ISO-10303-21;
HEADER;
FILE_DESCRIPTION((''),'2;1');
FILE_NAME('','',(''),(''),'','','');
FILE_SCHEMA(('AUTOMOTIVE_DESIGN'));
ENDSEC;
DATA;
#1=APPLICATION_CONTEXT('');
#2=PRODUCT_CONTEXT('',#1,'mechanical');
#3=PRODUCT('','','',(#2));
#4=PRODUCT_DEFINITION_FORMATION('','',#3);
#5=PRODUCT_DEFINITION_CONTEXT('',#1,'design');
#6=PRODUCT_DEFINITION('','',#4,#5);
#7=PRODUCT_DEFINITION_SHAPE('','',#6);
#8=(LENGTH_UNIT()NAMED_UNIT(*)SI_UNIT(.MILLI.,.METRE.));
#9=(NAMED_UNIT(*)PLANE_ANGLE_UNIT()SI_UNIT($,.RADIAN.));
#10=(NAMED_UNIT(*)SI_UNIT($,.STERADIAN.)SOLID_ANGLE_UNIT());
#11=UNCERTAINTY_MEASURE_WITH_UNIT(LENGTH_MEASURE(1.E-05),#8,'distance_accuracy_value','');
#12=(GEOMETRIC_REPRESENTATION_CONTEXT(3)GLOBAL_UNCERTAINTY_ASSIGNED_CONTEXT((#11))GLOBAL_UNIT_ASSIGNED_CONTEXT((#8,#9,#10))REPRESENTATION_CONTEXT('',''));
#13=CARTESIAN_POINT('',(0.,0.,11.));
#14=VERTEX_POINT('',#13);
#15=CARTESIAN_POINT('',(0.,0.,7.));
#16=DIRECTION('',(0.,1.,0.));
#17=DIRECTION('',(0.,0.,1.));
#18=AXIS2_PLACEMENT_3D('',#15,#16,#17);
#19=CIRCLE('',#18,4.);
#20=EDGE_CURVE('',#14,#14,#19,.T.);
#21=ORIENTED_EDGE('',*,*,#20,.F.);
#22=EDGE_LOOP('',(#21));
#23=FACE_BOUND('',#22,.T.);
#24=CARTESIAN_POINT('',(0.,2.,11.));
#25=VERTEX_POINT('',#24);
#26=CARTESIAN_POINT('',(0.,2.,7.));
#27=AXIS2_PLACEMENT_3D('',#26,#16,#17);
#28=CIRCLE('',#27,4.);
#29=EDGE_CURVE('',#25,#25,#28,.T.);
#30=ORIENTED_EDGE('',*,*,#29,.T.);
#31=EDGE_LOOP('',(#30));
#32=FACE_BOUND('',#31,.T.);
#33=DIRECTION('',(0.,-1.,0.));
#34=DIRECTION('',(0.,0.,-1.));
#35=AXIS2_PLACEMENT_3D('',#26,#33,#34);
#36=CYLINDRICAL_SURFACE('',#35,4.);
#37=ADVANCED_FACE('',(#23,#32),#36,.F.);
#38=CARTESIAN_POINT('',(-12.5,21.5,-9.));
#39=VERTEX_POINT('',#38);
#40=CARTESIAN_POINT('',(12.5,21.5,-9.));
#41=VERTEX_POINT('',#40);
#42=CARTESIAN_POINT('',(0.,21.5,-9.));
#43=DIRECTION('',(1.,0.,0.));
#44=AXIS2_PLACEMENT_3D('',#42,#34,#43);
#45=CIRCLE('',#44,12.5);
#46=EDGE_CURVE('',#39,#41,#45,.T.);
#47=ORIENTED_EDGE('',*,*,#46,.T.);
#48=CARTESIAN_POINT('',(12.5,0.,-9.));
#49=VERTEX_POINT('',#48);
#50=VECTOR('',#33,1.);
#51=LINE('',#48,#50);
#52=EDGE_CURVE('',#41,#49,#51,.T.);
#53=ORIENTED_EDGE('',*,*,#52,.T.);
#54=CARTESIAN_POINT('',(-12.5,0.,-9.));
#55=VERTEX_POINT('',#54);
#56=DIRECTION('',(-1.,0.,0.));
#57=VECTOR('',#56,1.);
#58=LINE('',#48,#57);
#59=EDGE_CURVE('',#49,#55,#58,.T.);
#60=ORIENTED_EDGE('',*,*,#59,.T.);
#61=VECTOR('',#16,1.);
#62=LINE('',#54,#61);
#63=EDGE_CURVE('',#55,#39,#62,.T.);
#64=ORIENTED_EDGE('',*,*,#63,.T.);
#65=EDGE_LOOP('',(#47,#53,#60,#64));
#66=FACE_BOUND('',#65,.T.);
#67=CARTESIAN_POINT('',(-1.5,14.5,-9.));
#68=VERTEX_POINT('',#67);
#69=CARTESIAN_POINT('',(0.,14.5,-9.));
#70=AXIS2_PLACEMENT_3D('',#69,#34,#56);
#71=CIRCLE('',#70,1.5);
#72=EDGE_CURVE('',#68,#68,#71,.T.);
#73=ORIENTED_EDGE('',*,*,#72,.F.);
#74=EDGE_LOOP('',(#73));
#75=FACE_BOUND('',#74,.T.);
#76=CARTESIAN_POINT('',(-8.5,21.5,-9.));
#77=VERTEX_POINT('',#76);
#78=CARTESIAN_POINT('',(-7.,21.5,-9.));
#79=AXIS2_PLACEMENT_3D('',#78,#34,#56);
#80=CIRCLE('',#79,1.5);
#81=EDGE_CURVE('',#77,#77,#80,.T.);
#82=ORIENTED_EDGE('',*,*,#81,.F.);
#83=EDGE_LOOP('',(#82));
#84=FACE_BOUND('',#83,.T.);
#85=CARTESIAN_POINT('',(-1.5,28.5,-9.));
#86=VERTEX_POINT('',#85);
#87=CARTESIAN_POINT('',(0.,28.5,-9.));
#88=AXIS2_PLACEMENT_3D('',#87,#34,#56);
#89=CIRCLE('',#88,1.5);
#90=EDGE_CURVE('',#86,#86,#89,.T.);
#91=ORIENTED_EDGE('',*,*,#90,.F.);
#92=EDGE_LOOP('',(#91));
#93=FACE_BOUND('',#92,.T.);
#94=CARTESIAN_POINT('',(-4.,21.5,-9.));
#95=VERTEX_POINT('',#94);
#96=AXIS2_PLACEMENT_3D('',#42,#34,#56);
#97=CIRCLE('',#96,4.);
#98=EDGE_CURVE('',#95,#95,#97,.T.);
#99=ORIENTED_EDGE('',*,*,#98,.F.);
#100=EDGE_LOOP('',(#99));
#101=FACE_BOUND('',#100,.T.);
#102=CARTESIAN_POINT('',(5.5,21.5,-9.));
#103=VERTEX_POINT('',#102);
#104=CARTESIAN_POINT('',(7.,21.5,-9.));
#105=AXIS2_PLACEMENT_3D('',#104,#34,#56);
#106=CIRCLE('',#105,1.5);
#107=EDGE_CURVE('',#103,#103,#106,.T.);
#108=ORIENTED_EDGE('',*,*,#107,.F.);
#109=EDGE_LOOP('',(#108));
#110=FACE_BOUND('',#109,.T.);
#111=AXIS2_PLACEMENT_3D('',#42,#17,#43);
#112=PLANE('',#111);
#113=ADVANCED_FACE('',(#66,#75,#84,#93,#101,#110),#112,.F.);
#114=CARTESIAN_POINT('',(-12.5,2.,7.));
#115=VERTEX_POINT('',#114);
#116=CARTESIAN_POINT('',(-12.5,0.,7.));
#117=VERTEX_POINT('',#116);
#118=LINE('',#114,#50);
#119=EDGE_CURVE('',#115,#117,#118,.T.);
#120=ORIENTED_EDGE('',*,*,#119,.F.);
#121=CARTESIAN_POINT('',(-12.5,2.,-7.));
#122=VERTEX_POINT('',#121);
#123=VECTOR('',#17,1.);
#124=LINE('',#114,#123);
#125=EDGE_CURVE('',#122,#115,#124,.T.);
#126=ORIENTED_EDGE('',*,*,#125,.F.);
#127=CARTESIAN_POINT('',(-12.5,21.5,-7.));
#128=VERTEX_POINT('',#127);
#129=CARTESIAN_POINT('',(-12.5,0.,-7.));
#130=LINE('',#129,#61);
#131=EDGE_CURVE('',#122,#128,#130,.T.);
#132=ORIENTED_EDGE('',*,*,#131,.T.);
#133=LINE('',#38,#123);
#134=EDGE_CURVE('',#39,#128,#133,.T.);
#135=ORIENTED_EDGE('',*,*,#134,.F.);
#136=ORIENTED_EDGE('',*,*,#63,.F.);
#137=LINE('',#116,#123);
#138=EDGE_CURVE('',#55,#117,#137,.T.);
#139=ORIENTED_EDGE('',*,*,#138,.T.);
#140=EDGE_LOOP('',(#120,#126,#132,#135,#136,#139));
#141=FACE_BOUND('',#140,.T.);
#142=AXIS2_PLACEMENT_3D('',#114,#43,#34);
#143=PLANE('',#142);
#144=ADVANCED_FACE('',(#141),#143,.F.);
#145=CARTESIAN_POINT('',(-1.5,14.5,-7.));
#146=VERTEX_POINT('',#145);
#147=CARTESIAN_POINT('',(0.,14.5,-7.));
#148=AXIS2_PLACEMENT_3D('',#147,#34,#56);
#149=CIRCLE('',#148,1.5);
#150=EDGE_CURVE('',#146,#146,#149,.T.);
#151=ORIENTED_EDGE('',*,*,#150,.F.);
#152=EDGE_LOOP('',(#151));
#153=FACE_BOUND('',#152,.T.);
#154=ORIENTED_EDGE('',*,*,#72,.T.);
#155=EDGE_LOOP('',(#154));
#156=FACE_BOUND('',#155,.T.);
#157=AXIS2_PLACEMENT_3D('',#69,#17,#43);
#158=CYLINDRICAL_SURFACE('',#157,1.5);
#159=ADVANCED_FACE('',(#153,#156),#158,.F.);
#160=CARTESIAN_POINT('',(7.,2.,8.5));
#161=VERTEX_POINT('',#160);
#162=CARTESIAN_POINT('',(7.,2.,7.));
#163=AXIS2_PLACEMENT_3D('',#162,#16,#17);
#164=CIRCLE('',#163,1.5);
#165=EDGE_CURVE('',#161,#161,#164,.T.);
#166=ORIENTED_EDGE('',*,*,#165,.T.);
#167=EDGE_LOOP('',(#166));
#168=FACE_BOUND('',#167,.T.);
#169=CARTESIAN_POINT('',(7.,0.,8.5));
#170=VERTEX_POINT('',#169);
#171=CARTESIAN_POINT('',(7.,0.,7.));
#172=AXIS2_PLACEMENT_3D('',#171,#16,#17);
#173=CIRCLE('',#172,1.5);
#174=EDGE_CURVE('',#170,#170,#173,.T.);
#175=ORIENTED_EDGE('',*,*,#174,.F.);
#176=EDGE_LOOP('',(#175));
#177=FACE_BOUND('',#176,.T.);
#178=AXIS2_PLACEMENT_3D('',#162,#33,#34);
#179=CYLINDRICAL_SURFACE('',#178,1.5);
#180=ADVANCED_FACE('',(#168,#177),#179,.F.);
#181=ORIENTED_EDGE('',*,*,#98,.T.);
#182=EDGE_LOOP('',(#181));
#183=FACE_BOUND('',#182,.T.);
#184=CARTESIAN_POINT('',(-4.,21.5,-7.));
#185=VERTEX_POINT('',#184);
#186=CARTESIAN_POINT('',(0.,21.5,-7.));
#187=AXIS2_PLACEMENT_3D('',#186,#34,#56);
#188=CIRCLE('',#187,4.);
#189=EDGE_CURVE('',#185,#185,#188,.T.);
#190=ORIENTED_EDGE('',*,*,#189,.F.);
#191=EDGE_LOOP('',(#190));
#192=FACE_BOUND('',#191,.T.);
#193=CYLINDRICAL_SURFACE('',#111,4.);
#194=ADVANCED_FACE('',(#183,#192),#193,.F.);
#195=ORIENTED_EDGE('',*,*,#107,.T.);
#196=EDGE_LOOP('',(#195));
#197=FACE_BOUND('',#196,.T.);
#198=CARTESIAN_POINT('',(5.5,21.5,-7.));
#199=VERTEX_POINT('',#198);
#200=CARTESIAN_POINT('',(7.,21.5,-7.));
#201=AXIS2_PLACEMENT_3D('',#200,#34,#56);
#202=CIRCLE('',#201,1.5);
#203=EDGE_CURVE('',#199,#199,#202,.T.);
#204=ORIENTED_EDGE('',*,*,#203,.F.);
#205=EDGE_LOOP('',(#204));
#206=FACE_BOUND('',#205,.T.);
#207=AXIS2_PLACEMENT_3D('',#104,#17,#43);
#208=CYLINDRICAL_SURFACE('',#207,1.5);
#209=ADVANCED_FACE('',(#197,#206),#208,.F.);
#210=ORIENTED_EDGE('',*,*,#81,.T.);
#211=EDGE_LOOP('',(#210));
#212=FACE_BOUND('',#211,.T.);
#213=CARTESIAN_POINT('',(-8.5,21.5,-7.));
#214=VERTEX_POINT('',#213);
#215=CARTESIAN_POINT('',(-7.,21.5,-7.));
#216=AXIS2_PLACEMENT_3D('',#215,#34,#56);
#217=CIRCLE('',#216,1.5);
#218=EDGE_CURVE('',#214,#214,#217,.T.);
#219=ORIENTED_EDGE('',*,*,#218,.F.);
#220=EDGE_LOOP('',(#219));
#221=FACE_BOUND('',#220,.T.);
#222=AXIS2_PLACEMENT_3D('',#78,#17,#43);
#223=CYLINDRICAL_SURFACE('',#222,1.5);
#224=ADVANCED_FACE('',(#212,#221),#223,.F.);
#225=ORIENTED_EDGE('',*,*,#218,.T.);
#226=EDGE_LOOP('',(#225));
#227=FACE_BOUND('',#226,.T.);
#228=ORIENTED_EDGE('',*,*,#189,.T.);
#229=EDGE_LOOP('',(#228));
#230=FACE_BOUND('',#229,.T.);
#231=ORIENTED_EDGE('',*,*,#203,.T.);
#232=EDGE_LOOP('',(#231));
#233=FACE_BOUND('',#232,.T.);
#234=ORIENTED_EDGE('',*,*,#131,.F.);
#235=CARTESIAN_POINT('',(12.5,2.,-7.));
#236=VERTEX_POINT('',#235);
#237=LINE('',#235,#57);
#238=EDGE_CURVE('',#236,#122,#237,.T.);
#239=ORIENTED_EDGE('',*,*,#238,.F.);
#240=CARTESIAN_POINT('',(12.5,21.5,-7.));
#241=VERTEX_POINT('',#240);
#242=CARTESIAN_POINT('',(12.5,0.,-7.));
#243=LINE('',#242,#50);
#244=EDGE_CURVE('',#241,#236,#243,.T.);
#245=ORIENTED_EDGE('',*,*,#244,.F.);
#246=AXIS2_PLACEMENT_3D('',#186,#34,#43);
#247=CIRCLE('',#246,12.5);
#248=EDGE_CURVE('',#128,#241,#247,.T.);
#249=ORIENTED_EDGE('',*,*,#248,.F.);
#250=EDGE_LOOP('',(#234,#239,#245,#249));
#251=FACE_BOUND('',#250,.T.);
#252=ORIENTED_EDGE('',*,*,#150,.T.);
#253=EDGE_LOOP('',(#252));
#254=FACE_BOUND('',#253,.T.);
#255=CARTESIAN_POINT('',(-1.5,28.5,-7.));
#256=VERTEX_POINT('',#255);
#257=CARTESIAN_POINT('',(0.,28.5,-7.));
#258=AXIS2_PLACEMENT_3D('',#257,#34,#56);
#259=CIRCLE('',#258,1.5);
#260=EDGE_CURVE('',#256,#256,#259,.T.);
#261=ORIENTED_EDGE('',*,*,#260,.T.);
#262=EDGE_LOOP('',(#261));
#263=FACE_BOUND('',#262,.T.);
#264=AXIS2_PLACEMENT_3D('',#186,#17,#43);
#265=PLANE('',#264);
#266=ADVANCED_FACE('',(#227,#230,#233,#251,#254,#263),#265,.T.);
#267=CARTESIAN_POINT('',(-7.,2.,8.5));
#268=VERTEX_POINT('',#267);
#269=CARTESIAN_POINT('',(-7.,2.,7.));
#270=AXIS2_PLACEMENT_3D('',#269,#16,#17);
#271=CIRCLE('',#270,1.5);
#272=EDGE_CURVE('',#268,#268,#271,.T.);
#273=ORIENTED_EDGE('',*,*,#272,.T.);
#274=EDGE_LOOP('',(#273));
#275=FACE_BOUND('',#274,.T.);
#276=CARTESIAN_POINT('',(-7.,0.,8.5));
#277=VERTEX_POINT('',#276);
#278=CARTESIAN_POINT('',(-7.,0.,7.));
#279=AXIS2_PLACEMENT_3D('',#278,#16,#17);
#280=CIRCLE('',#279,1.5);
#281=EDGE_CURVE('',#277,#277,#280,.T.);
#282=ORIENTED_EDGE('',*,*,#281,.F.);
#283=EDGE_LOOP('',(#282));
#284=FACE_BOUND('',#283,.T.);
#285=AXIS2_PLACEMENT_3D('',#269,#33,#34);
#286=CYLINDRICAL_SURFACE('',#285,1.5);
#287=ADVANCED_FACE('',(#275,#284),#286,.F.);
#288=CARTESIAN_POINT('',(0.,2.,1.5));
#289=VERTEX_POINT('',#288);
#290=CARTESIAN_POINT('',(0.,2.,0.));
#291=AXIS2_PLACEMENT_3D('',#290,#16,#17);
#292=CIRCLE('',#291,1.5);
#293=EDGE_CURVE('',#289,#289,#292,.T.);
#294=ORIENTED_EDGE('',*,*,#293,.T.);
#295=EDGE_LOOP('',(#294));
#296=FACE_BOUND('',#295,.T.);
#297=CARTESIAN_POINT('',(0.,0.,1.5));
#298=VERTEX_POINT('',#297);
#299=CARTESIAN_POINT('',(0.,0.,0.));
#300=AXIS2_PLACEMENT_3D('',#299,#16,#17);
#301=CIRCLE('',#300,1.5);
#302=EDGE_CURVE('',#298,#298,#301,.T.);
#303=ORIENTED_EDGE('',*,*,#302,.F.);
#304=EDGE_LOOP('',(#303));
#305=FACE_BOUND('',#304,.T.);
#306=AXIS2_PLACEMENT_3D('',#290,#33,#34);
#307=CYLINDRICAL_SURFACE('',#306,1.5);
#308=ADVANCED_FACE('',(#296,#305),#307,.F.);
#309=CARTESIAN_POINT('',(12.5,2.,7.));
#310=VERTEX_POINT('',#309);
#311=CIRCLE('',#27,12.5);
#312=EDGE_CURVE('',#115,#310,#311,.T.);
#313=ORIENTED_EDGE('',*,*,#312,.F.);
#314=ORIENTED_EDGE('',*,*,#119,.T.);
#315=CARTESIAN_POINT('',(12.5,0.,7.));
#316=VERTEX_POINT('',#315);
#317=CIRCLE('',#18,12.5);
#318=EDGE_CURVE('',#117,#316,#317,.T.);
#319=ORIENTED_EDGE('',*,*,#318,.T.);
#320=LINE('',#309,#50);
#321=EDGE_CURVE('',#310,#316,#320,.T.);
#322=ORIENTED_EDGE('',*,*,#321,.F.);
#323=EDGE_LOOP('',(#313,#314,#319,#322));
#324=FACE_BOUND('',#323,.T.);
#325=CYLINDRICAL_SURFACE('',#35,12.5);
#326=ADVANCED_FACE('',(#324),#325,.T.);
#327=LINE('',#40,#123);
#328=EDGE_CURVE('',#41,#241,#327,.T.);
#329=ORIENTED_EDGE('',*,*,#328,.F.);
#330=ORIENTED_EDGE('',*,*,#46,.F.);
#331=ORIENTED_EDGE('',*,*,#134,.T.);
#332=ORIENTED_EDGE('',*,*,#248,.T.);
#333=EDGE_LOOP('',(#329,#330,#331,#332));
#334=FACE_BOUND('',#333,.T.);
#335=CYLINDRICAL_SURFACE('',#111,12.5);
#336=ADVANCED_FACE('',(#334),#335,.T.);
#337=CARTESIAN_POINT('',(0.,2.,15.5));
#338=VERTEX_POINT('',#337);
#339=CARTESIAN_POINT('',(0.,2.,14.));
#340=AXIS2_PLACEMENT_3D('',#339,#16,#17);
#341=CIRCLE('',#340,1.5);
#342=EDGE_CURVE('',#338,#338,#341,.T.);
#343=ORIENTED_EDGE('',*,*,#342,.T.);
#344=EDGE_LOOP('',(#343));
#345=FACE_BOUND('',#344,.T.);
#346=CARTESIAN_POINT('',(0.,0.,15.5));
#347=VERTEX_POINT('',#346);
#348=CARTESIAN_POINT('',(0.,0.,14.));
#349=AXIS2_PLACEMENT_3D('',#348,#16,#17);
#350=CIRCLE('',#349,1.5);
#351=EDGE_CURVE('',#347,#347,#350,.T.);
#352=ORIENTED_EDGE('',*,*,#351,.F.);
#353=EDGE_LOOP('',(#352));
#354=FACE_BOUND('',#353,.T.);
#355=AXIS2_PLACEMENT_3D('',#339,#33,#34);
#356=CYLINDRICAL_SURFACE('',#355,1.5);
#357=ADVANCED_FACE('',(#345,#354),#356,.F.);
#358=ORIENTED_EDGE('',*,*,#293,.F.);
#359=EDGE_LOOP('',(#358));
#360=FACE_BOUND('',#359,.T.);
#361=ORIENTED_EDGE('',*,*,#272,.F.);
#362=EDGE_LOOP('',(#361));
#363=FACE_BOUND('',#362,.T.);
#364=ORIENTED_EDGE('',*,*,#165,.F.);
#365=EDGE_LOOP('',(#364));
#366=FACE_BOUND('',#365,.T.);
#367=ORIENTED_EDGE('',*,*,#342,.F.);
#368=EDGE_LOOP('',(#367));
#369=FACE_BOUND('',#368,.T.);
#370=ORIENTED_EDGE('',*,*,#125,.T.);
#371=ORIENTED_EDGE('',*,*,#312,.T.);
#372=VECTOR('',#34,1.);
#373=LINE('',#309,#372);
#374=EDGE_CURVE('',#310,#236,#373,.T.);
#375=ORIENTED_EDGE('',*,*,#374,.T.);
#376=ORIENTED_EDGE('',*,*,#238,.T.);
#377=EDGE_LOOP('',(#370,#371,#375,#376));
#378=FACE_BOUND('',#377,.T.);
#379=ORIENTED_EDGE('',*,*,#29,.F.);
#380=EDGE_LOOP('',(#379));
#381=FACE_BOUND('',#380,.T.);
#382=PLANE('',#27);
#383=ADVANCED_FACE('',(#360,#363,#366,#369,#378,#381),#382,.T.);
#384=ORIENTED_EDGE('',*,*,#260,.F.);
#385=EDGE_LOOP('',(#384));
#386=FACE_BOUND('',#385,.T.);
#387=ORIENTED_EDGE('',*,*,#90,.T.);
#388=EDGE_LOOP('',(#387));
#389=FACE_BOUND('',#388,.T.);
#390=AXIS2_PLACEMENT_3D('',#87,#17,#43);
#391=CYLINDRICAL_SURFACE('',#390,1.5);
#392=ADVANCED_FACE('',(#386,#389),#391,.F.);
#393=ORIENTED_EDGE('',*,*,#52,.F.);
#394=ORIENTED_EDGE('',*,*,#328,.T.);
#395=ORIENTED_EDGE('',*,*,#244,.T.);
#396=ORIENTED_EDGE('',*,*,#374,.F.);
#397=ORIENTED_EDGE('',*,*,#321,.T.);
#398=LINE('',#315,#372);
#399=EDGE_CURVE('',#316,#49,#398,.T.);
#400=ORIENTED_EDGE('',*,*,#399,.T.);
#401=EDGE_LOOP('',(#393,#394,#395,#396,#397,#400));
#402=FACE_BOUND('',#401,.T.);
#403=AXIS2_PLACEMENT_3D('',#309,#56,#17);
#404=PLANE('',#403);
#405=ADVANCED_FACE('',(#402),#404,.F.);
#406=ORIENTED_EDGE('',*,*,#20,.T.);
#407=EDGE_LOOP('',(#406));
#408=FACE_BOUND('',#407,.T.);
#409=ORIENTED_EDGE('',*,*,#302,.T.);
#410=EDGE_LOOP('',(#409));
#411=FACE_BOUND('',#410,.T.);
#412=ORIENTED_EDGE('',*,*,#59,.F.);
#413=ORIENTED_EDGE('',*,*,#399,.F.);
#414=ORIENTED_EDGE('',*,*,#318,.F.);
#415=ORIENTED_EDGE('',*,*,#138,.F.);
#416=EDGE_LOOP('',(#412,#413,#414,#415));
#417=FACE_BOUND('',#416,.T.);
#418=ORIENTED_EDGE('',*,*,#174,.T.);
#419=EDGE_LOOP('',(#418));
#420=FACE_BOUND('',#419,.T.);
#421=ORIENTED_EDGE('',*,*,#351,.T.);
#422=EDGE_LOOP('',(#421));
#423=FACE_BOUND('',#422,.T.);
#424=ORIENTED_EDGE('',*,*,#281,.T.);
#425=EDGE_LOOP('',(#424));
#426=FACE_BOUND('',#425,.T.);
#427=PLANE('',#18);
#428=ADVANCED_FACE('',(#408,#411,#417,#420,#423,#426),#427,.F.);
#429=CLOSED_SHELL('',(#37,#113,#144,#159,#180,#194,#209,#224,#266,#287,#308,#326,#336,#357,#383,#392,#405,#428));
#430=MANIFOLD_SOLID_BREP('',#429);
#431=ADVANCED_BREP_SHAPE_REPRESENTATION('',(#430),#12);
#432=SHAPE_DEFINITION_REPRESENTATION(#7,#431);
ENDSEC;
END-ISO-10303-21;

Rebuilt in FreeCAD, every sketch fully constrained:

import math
import FreeCAD as App
import Part
import Sketcher
from FreeCAD import Vector

doc = App.newDocument("Part")
params = doc.addObject("Spreadsheet::Sheet", "Params")
for row, (alias, value) in enumerate([
    ("sketch1_diameter", "3 mm"),
    ("sketch1_diameter2", "8 mm"),
    ("sketch1_radius", "12.5 mm"),
    ("sketch1_height", "14 mm"),
    ("pad1_length", "2 mm"),
    ("sketch2_diameter", "3 mm"),
    ("sketch2_diameter2", "8 mm"),
    ("sketch2_radius", "12.5 mm"),
    ("sketch2_height", "21.5 mm"),
    ("pad2_length", "2 mm"),
], start=1):
    params.set(f"A{row}", alias)
    params.set(f"B{row}", "=" + value)
    params.setAlias(f"B{row}", alias)

body = doc.addObject("PartDesign::Body", "Body")

sketch1 = body.newObject("Sketcher::SketchObject", "Sketch")
sketch1.AttachmentSupport = (doc.getObject("XZ_Plane"), [""])
sketch1.MapMode = "FlatFace"
sketch1.addGeometry([
    Part.LineSegment(Vector(12.5, 7, 0), Vector(12.5, -7, 0)),
    Part.LineSegment(Vector(12.5, -7, 0), Vector(-12.5, -7, 0)),
    Part.LineSegment(Vector(-12.5, -7, 0), Vector(-12.5, 7, 0)),
    Part.ArcOfCircle(Part.Circle(Vector(0, 7, 0), Vector(0, 0, 1), 12.5), math.radians(0), math.radians(180)),
    Part.Circle(Vector(0, 14, 0), Vector(0, 0, 1), 1.5),
    Part.Circle(Vector(-7, 7, 0), Vector(0, 0, 1), 1.5),
    Part.Circle(Vector(0, 7, 0), Vector(0, 0, 1), 4),
    Part.Circle(Vector(7, 7, 0), Vector(0, 0, 1), 1.5),
    Part.Circle(Vector(0, 0, 0), Vector(0, 0, 1), 1.5),
], False)
sketch1.addConstraint([
    Sketcher.Constraint("Coincident", 0, 2, 1, 1),
    Sketcher.Constraint("Coincident", 1, 2, 2, 1),
    Sketcher.Constraint("Tangent", 2, 2, 3, 2),
    Sketcher.Constraint("Tangent", 3, 1, 0, 1),
    Sketcher.Constraint("Vertical", 0),
    Sketcher.Constraint("Horizontal", 1),
    Sketcher.Constraint("Vertical", 2),
    Sketcher.Constraint("Coincident", 8, 3, -1, 1),
    Sketcher.Constraint("Coincident", 6, 3, 3, 3),
    Sketcher.Constraint("Equal", 4, 5),
    Sketcher.Constraint("Equal", 5, 7),
    Sketcher.Constraint("Equal", 7, 8),
    Sketcher.Constraint("Symmetric", 0, 2, 2, 2, -1, 1),
    Sketcher.Constraint("Symmetric", 5, 3, 7, 3, -2),
    Sketcher.Constraint("PointOnObject", 4, 3, -2),
    Sketcher.Constraint("Horizontal", 3, 3, 5, 3),
    Sketcher.Constraint("Diameter", 4, 3.0),
    Sketcher.Constraint("Diameter", 6, 8.0),
    Sketcher.Constraint("Radius", 3, 12.5),
    Sketcher.Constraint("DistanceY", 0, 2, 0, 1, 14.0),
    Sketcher.Constraint("DistanceY", -1, 1, 4, 3, 14.0),
    Sketcher.Constraint("DistanceX", 5, 3, -1, 1, 7.0),
])
sketch1.setExpression("Constraints[16]", "Params.sketch1_diameter")
sketch1.setExpression("Constraints[17]", "Params.sketch1_diameter2")
sketch1.setExpression("Constraints[18]", "Params.sketch1_radius")
sketch1.setExpression("Constraints[19]", "Params.sketch1_height")
pad1 = body.newObject("PartDesign::Pad", "Pad")
pad1.Profile = sketch1
pad1.setExpression("Length", "Params.pad1_length")
pad1.Reversed = True

sketch2 = body.newObject("Sketcher::SketchObject", "Sketch001")
sketch2.AttachmentSupport = (doc.getObject("XY_Plane"), [""])
sketch2.MapMode = "FlatFace"
sketch2.AttachmentOffset = App.Placement(Vector(0, 0, -7), App.Rotation())
sketch2.addGeometry([
    Part.LineSegment(Vector(12.5, 0, 0), Vector(-12.5, 0, 0)),
    Part.LineSegment(Vector(-12.5, 0, 0), Vector(-12.5, 21.5, 0)),
    Part.ArcOfCircle(Part.Circle(Vector(0, 21.5, 0), Vector(0, 0, 1), 12.5), math.radians(0), math.radians(180)),
    Part.LineSegment(Vector(12.5, 21.5, 0), Vector(12.5, 0, 0)),
    Part.Circle(Vector(0, 14.5, 0), Vector(0, 0, 1), 1.5),
    Part.Circle(Vector(7, 21.5, 0), Vector(0, 0, 1), 1.5),
    Part.Circle(Vector(0, 21.5, 0), Vector(0, 0, 1), 4),
    Part.Circle(Vector(-7, 21.5, 0), Vector(0, 0, 1), 1.5),
    Part.Circle(Vector(0, 28.5, 0), Vector(0, 0, 1), 1.5),
], False)
sketch2.addConstraint([
    Sketcher.Constraint("Coincident", 0, 2, 1, 1),
    Sketcher.Constraint("Tangent", 1, 2, 2, 2),
    Sketcher.Constraint("Tangent", 2, 1, 3, 1),
    Sketcher.Constraint("Coincident", 3, 2, 0, 1),
    Sketcher.Constraint("Horizontal", 0),
    Sketcher.Constraint("Vertical", 1),
    Sketcher.Constraint("Vertical", 3),
    Sketcher.Constraint("Coincident", 6, 3, 2, 3),
    Sketcher.Constraint("Equal", 4, 5),
    Sketcher.Constraint("Equal", 5, 7),
    Sketcher.Constraint("Equal", 7, 8),
    Sketcher.Constraint("Symmetric", 0, 2, 3, 2, -1, 1),
    Sketcher.Constraint("Symmetric", 5, 3, 7, 3, -2),
    Sketcher.Constraint("PointOnObject", 4, 3, -2),
    Sketcher.Constraint("PointOnObject", 8, 3, -2),
    Sketcher.Constraint("Horizontal", 2, 3, 5, 3),
    Sketcher.Constraint("Diameter", 4, 3.0),
    Sketcher.Constraint("Diameter", 6, 8.0),
    Sketcher.Constraint("Radius", 2, 12.5),
    Sketcher.Constraint("DistanceY", 1, 1, 1, 2, 21.5),
    Sketcher.Constraint("DistanceX", -1, 1, 5, 3, 7.0),
    Sketcher.Constraint("DistanceY", 4, 3, 2, 3, 7.0),
    Sketcher.Constraint("DistanceY", 2, 3, 8, 3, 7.0),
])
sketch2.setExpression("Constraints[16]", "Params.sketch2_diameter")
sketch2.setExpression("Constraints[17]", "Params.sketch2_diameter2")
sketch2.setExpression("Constraints[18]", "Params.sketch2_radius")
sketch2.setExpression("Constraints[19]", "Params.sketch2_height")
pad2 = body.newObject("PartDesign::Pad", "Pad001")
pad2.Profile = sketch2
pad2.setExpression("Length", "Params.pad2_length")
pad2.Reversed = True

doc.recompute()
